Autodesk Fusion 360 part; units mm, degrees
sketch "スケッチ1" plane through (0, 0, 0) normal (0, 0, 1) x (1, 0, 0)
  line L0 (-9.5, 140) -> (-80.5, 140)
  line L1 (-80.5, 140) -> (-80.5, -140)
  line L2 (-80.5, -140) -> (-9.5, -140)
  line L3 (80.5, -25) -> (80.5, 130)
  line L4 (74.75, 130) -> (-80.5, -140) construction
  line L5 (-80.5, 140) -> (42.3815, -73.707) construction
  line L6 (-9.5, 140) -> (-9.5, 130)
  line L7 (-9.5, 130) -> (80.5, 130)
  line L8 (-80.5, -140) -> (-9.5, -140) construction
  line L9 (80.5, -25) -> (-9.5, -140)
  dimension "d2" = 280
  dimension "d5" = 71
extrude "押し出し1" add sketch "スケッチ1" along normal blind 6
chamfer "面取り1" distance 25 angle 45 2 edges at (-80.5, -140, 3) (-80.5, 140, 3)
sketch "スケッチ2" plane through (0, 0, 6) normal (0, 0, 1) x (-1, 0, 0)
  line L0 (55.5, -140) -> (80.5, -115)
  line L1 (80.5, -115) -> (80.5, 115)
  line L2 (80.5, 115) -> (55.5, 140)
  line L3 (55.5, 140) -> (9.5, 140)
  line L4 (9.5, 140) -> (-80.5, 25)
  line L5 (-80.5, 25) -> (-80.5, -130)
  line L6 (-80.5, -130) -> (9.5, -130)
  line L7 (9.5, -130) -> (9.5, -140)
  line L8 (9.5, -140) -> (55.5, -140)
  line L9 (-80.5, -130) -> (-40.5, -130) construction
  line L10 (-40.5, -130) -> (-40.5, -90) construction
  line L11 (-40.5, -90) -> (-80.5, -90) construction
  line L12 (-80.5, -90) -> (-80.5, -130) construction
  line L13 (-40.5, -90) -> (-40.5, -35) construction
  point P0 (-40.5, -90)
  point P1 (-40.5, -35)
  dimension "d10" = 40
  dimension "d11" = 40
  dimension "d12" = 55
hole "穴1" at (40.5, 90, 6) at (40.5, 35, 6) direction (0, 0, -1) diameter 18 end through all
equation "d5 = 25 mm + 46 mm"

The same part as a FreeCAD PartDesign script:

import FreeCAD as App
import Part
import Sketcher
from FreeCAD import Vector
Q = App.Units.Quantity


def edges_at(feature, points):
    """Names of the edges that pass closest to the given points."""
    edges = feature.Shape.Edges
    near = lambda p: min(range(len(edges)), key=lambda i: edges[i].distToShape(Part.Vertex(*p))[0])
    return sorted({f"Edge{near(p) + 1}" for p in points})

doc = App.newDocument("Part")
body = doc.addObject("PartDesign::Body", "Body")

# Sketch on XY plane
sketch1 = body.newObject("Sketcher::SketchObject", "Sketch")
sketch1.AttachmentSupport = (doc.getObject("XY_Plane"), [""])
sketch1.MapMode = "FlatFace"
sketch1.addGeometry(Part.LineSegment(Vector(-10, 130, 0), Vector(-10, 140, 0)), False)
sketch1.addGeometry(Part.LineSegment(Vector(-10, 140, 0), Vector(-80, 140, 0)), False)
sketch1.addGeometry(Part.LineSegment(Vector(-80, 140, 0), Vector(-80, -140, 0)), False)
sketch1.addGeometry(Part.LineSegment(Vector(-80, -140, 0), Vector(-10, -140, 0)), False)
sketch1.addGeometry(Part.LineSegment(Vector(-10, -140, 0), Vector(80, -25, 0)), False)
sketch1.addGeometry(Part.LineSegment(Vector(80, -25, 0), Vector(80, 130, 0)), False)
sketch1.addGeometry(Part.LineSegment(Vector(80, 130, 0), Vector(-10, 130, 0)), False)
sketch1.addConstraint(Sketcher.Constraint("Coincident", 0, 2, 1, 1))
sketch1.addConstraint(Sketcher.Constraint("Coincident", 1, 2, 2, 1))
sketch1.addConstraint(Sketcher.Constraint("Coincident", 2, 2, 3, 1))
sketch1.addConstraint(Sketcher.Constraint("Coincident", 3, 2, 4, 1))
sketch1.addConstraint(Sketcher.Constraint("Coincident", 4, 2, 5, 1))
sketch1.addConstraint(Sketcher.Constraint("Coincident", 5, 2, 6, 1))
sketch1.addConstraint(Sketcher.Constraint("Coincident", 6, 2, 0, 1))
sketch1.addConstraint(Sketcher.Constraint("Vertical", 0))
sketch1.addConstraint(Sketcher.Constraint("Horizontal", 1))
sketch1.addConstraint(Sketcher.Constraint("Vertical", 2))
sketch1.addConstraint(Sketcher.Constraint("Horizontal", 3))
sketch1.addConstraint(Sketcher.Constraint("Vertical", 5))
sketch1.addConstraint(Sketcher.Constraint("Horizontal", 6))
sketch1.addConstraint(Sketcher.Constraint("Symmetric", 0, 2, 3, 2, -1))
sketch1.addConstraint(Sketcher.Constraint("DistanceX", 1, 2, 1, 1, Q("71 mm")))
sketch1.addConstraint(Sketcher.Constraint("DistanceY", 2, 2, 2, 1, Q("280 mm")))
sketch1.addConstraint(Sketcher.Constraint("DistanceX", 6, 2, 6, 1, Q("90 mm")))
sketch1.addConstraint(Sketcher.Constraint("DistanceY", 0, 1, 0, 2, Q("10 mm")))
sketch1.addConstraint(Sketcher.Constraint("DistanceY", 5, 1, 5, 2, Q("155 mm")))
sketch1.addConstraint(Sketcher.Constraint("DistanceX", 0, 2, -1, 1, Q("9.5 mm")))
pad1 = body.newObject("PartDesign::Pad", "Pad")
pad1.Profile = sketch1
pad1.Length = 6
doc.recompute()

chamfer = body.newObject("PartDesign::Chamfer", "Chamfer")
chamfer.Base = (pad1, edges_at(pad1, [(-80.5, -140, 3), (-80.5, 140, 3)]))
chamfer.Size = 25

# Sketch on XY plane
sketch2 = body.newObject("Sketcher::SketchObject", "Sketch001")
sketch2.AttachmentSupport = (doc.getObject("XY_Plane"), [""])
sketch2.MapMode = "FlatFace"
sketch2.AttachmentOffset = App.Placement(Vector(0, 0, 6), App.Rotation())
sketch2.addGeometry(Part.Circle(Vector(40, 90, 0), Vector(0, 0, 1), 9), False)
sketch2.addGeometry(Part.Circle(Vector(40, 35, 0), Vector(0, 0, 1), 9), False)
sketch2.addConstraint(Sketcher.Constraint("Equal", 0, 1))
sketch2.addConstraint(Sketcher.Constraint("Vertical", 0, 3, 1, 3))
sketch2.addConstraint(Sketcher.Constraint("Diameter", 0, Q("18 mm")))
sketch2.addConstraint(Sketcher.Constraint("DistanceY", -1, 1, 0, 3, Q("90 mm")))
sketch2.addConstraint(Sketcher.Constraint("DistanceY", -1, 1, 1, 3, Q("35 mm")))
sketch2.addConstraint(Sketcher.Constraint("DistanceX", -1, 1, 0, 3, Q("40.5 mm")))
doc.recompute()
hole = body.newObject("PartDesign::Hole", "Hole")
hole.Profile = sketch2
hole.ThreadType = "None"
hole.Diameter = 18
hole.DepthType = "ThroughAll"

doc.recompute()
